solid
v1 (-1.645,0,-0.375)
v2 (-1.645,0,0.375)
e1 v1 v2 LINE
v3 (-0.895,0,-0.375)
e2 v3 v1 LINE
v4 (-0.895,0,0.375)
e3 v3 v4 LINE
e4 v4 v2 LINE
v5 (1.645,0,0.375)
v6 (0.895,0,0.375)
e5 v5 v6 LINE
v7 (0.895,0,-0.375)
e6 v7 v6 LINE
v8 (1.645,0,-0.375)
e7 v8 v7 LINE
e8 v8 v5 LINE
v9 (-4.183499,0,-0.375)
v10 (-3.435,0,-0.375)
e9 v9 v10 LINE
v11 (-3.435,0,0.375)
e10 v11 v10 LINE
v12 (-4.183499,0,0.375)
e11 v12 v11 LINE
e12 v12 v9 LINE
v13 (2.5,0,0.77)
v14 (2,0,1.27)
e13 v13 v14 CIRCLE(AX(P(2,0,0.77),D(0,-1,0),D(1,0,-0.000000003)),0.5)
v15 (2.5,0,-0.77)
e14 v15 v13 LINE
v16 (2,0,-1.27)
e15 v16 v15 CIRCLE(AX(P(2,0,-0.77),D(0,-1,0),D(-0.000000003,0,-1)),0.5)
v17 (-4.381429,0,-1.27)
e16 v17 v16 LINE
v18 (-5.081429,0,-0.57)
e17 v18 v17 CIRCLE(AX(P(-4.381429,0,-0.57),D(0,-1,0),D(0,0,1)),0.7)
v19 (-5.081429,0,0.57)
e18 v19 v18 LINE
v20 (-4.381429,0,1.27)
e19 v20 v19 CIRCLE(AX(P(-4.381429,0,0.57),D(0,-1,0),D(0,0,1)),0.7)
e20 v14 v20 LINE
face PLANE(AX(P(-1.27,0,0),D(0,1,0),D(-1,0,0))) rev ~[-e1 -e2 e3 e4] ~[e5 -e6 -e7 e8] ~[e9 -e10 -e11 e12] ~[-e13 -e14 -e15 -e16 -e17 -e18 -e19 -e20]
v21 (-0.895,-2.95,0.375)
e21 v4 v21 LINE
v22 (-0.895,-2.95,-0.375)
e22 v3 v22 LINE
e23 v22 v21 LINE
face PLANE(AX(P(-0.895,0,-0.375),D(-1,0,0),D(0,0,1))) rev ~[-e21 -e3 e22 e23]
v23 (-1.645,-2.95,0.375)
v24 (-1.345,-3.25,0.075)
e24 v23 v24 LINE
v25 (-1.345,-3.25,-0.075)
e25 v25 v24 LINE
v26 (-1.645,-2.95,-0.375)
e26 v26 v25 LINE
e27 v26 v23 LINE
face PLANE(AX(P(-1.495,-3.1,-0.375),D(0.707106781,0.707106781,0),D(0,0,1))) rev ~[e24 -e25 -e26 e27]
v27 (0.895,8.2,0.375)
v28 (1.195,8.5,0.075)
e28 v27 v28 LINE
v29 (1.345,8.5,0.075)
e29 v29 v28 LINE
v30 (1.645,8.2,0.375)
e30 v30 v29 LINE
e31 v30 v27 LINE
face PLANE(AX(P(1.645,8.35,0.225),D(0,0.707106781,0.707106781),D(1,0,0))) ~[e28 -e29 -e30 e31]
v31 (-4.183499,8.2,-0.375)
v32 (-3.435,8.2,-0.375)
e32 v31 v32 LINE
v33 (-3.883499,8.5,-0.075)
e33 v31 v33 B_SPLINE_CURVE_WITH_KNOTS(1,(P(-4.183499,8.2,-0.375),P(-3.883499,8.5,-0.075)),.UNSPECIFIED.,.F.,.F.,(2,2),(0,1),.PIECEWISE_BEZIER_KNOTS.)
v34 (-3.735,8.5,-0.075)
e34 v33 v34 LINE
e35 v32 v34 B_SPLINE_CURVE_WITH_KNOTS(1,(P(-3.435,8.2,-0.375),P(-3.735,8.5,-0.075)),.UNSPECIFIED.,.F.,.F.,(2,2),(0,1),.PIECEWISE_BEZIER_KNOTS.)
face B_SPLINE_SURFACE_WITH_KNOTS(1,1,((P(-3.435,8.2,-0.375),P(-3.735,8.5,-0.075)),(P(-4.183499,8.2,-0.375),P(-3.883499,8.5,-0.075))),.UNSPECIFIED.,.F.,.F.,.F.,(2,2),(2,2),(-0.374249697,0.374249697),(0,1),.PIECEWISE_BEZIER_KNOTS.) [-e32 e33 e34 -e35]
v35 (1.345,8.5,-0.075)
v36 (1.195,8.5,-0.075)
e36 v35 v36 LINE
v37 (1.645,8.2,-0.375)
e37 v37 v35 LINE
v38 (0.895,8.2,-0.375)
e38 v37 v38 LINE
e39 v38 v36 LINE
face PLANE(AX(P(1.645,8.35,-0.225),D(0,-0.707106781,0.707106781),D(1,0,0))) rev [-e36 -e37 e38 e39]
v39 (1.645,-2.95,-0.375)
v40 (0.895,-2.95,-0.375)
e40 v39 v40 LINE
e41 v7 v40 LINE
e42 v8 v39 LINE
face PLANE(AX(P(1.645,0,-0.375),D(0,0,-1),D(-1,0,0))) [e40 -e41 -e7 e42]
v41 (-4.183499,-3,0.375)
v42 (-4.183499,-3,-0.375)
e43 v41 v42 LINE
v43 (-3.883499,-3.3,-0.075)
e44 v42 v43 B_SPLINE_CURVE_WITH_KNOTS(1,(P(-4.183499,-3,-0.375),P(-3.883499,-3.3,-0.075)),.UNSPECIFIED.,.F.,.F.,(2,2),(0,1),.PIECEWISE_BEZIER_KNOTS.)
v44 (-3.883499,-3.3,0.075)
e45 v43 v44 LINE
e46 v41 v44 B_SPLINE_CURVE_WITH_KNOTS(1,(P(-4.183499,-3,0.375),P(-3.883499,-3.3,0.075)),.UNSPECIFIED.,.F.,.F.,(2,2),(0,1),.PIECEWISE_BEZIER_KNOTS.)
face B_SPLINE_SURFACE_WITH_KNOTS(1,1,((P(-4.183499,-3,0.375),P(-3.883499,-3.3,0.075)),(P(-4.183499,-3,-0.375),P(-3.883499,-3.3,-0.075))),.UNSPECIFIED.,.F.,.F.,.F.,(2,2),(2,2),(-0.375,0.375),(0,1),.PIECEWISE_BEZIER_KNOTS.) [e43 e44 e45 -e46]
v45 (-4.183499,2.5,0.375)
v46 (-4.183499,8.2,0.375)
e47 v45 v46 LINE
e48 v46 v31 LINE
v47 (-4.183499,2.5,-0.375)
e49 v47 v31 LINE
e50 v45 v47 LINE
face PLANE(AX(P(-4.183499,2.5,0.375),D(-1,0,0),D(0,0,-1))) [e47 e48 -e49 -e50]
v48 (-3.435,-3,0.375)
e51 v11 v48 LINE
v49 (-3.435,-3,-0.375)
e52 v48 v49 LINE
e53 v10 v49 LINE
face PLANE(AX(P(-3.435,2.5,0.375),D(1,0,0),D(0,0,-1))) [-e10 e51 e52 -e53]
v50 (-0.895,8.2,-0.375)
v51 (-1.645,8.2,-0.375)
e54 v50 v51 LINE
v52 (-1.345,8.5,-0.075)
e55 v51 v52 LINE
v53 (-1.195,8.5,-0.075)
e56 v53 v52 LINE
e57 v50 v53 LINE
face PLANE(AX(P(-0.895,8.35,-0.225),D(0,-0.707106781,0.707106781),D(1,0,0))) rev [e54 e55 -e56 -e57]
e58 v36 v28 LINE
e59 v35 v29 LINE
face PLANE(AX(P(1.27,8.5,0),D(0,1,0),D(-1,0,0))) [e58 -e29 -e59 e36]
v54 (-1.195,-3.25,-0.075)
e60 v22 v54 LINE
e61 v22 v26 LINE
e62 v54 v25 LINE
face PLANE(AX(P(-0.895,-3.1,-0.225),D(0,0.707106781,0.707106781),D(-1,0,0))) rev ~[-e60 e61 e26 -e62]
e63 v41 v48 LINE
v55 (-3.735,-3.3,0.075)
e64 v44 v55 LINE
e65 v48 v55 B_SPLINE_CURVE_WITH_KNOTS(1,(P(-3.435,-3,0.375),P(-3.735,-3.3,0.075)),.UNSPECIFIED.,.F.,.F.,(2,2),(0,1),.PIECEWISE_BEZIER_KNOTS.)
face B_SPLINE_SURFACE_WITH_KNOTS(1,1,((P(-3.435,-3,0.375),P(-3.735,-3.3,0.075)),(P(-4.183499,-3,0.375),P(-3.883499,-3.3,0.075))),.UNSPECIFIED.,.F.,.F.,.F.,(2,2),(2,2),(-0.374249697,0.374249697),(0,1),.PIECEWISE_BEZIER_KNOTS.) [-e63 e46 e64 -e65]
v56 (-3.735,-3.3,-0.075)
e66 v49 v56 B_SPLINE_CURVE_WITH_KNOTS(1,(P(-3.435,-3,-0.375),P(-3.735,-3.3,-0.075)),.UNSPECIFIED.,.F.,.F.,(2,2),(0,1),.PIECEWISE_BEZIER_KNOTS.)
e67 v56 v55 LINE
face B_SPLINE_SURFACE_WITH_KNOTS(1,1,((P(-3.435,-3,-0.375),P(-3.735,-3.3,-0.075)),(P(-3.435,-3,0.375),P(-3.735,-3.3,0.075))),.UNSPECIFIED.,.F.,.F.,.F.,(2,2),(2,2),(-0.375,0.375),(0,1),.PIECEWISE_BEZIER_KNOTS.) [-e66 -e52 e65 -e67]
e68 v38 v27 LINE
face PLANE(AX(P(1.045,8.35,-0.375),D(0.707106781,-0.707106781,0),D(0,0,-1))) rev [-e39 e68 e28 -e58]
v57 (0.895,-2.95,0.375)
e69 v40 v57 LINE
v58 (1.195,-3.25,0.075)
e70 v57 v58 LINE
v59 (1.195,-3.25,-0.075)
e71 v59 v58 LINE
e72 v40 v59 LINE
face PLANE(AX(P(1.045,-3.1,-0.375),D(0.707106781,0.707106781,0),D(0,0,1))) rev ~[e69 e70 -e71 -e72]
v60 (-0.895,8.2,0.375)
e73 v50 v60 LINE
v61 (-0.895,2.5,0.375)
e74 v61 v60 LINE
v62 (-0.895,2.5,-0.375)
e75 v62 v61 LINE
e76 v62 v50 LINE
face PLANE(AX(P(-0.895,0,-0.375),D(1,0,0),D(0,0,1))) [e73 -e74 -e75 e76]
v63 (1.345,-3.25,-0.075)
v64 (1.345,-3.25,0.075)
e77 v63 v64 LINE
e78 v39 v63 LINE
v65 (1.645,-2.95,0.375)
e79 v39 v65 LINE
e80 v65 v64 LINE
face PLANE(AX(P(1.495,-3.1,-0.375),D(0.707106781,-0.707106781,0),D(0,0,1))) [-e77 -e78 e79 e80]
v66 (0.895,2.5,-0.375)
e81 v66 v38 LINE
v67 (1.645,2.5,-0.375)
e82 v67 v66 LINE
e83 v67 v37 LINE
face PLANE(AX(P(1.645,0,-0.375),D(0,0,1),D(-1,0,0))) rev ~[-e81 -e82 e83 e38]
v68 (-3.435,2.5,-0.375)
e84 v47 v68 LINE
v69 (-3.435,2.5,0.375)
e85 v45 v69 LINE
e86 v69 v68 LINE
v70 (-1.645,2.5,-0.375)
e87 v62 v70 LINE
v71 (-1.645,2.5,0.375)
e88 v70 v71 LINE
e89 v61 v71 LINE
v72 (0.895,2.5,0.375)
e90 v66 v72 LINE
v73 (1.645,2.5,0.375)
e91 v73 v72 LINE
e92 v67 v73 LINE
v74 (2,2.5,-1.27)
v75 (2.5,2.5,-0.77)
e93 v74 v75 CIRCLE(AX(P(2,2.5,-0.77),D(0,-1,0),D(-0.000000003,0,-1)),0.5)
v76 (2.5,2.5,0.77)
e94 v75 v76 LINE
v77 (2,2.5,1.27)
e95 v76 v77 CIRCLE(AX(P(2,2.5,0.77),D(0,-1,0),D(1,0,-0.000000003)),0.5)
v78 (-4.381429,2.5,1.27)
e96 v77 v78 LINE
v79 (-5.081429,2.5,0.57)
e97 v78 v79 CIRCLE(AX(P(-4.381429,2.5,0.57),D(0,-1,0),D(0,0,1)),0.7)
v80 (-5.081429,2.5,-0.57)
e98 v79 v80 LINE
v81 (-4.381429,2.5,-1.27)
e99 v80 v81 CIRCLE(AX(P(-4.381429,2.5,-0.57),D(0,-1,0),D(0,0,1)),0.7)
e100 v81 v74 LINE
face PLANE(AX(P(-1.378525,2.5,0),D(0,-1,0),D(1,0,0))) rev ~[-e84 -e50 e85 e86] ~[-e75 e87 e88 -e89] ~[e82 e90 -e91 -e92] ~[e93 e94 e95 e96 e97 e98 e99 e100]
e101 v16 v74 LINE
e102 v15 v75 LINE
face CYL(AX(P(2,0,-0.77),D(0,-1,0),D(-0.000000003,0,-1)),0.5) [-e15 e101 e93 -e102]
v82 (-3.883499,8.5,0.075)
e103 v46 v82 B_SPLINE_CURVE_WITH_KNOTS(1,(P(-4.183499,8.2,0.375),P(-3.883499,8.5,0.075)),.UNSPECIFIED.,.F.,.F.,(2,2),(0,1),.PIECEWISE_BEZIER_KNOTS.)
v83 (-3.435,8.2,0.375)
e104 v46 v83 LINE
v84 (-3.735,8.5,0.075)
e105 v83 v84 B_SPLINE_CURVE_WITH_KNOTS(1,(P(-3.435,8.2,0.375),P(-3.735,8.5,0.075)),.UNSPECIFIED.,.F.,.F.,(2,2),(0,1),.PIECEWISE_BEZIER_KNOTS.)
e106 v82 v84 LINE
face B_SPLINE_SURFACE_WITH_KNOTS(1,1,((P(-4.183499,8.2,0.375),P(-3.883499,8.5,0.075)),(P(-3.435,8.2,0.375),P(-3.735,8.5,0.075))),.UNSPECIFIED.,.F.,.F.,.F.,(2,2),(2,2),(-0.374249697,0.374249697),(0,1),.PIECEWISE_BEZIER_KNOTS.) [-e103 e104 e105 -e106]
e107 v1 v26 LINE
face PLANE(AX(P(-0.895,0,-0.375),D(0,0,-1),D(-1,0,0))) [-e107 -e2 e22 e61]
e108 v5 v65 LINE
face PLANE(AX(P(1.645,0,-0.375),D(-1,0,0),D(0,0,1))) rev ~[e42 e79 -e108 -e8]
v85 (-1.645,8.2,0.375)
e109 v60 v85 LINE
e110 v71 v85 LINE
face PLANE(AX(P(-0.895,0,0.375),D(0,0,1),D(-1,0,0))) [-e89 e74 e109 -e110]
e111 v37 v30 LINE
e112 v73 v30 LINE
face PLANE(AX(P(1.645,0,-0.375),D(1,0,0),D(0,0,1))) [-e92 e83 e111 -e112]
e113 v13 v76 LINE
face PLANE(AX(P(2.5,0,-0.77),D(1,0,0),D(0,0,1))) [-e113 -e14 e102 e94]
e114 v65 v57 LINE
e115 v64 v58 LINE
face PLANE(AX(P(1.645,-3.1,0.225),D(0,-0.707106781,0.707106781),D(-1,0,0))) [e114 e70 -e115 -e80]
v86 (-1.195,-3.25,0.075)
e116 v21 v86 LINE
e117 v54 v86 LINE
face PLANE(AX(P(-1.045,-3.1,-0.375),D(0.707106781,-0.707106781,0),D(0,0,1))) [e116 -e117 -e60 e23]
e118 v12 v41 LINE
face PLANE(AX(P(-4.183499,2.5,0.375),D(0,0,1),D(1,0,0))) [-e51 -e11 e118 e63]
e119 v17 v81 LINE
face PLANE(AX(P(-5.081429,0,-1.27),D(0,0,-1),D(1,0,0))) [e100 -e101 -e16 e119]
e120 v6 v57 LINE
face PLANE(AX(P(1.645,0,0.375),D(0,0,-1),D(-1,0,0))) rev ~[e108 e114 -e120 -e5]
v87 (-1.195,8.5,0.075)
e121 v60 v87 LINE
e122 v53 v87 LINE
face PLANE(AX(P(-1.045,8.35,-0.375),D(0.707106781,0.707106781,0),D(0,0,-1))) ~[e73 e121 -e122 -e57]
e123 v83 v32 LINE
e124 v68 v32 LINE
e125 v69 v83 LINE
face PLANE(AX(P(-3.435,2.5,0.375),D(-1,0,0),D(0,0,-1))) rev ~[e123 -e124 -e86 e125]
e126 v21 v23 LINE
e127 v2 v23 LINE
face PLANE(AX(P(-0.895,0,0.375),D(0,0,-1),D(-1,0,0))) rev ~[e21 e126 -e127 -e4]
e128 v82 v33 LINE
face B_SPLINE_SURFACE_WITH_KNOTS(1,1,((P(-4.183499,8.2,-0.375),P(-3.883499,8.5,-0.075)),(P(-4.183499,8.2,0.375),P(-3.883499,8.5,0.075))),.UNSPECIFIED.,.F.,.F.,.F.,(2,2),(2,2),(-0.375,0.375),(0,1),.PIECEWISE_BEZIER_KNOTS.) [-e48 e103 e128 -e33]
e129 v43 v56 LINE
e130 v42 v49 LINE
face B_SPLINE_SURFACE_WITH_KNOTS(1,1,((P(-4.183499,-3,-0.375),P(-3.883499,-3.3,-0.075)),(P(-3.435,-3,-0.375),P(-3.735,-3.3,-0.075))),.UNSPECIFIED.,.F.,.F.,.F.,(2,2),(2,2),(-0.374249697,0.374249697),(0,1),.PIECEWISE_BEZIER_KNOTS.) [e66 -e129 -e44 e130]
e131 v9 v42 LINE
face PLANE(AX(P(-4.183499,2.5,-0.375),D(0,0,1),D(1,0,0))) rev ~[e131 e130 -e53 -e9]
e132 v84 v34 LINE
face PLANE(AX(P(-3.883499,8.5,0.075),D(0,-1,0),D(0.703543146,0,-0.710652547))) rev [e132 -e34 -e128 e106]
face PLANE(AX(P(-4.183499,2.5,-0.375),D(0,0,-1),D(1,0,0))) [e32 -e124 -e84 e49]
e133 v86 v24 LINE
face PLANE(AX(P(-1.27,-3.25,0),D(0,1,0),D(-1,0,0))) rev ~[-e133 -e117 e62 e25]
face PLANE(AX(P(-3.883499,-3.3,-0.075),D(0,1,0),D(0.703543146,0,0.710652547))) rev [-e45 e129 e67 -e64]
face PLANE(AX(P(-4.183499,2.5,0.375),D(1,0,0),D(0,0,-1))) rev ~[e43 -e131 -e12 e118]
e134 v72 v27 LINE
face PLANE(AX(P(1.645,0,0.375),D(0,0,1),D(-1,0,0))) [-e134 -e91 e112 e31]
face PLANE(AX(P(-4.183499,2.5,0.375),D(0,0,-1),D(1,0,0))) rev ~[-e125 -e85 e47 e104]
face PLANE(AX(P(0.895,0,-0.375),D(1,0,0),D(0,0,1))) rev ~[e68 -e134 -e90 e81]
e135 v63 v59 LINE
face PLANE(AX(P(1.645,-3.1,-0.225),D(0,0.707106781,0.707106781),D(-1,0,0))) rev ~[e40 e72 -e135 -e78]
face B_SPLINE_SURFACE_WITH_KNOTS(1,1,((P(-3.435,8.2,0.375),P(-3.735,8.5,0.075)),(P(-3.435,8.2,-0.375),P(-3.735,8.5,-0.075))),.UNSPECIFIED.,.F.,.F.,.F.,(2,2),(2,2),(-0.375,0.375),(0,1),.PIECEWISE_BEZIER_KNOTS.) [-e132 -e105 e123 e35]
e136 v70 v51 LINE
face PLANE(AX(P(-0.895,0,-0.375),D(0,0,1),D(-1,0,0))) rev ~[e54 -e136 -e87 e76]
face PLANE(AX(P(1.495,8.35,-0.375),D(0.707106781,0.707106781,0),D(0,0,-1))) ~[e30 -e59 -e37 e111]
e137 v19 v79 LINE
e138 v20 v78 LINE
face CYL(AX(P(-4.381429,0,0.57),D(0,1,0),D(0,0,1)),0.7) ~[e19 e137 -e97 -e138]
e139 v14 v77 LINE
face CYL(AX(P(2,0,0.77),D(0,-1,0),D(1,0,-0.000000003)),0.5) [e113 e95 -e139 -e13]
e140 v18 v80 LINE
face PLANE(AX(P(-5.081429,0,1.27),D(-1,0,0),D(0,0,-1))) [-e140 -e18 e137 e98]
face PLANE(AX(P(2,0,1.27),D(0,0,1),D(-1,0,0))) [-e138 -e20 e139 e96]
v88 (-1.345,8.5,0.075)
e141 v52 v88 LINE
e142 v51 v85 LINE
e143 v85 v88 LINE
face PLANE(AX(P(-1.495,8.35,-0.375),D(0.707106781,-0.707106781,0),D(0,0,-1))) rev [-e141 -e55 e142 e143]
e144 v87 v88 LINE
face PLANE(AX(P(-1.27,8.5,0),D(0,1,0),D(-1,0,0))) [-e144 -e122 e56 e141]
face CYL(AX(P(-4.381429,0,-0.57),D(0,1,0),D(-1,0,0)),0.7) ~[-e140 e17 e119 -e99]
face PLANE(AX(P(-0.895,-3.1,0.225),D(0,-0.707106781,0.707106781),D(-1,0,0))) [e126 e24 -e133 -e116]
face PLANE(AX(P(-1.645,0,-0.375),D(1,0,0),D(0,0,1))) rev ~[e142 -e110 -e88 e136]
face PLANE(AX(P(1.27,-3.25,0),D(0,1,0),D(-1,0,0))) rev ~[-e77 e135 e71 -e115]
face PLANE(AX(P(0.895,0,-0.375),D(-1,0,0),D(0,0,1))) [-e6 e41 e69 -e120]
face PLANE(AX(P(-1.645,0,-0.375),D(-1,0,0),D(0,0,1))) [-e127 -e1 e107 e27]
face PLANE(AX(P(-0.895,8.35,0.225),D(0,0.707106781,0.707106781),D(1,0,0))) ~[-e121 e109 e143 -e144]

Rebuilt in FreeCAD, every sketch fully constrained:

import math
import FreeCAD as App
import Part
import Sketcher
from FreeCAD import Vector
Q = App.Units.Quantity


def edges_at(feature, points):
    """Names of the edges that pass closest to the given points."""
    edges = feature.Shape.Edges
    near = lambda p: min(range(len(edges)), key=lambda i: edges[i].distToShape(Part.Vertex(*p))[0])
    return sorted({f"Edge{near(p) + 1}" for p in points})


def add_polygon(sketch, points):
    """Adds a closed chain of lines whose ends are joined by coincident constraints."""
    first, n = sketch.GeometryCount, len(points)
    for a, b in zip(points, points[1:] + points[:1]):
        sketch.addGeometry(Part.LineSegment(App.Vector(*a, 0), App.Vector(*b, 0)), False)
    for i in range(n):
        sketch.addConstraint(Sketcher.Constraint("Coincident", first + i, 2, first + (i + 1) % n, 1))

doc = App.newDocument("Part")
params = doc.addObject("Spreadsheet::Sheet", "Params")
for row, (alias, value) in enumerate([
    ("sketch1_radius", "0.5 mm"),
    ("sketch1_height", "1.54 mm"),
    ("pad1_length", "2.5 mm"),
    ("sketch2_width", "0.75 mm"),
    ("pad2_length", "8.5 mm"),
    ("pad2_length2", "3.25 mm"),
    ("chamfer_size", "0.3 mm"),
    ("fillet_radius", "0.7 mm"),
    ("sketch3_height", "0.75 mm"),
    ("pad3_length", "5.7 mm"),
    ("pad3_length2", "5.5 mm"),
    ("sketch4_height", "0.75 mm"),
    ("pad4_length", "0.3 mm"),
    ("pad4_taper", "-45 deg"),
    ("sketch5_height", "0.75 mm"),
    ("pad5_length", "0.3 mm"),
    ("pad5_taper", "-45 deg"),
], start=1):
    params.set(f"A{row}", alias)
    params.set(f"B{row}", "=" + value)
    params.setAlias(f"B{row}", alias)

body = doc.addObject("PartDesign::Body", "Body")

# Sketch on XZ plane
sketch1 = body.newObject("Sketcher::SketchObject", "Sketch")
sketch1.AttachmentSupport = (doc.getObject("XZ_Plane"), [""])
sketch1.MapMode = "FlatFace"
sketch1.addGeometry([
    Part.LineSegment(Vector(-5.081429, 1.27, 0), Vector(2, 1.27, 0)),  # 0
    Part.ArcOfCircle(Part.Circle(Vector(2, 0.77, 0), Vector(0, 0, 1), 0.5), math.radians(0), math.radians(90)),  # 1
    Part.LineSegment(Vector(2.5, 0.77, 0), Vector(2.5, -0.77, 0)),  # 2
    Part.ArcOfCircle(Part.Circle(Vector(2, -0.77, 0), Vector(0, 0, 1), 0.5), math.radians(-90), math.radians(0)),  # 3
    Part.LineSegment(Vector(2, -1.27, 0), Vector(-5.081429, -1.27, 0)),  # 4
    Part.LineSegment(Vector(-5.081429, -1.27, 0), Vector(-5.081429, 1.27, 0)),  # 5
], False)
sketch1.addConstraint([
    Sketcher.Constraint("Tangent", 0, 2, 1, 2),
    Sketcher.Constraint("Tangent", 1, 1, 2, 1),
    Sketcher.Constraint("Tangent", 2, 2, 3, 2),
    Sketcher.Constraint("Tangent", 3, 1, 4, 1),
    Sketcher.Constraint("Coincident", 4, 2, 5, 1),
    Sketcher.Constraint("Coincident", 5, 2, 0, 1),
    Sketcher.Constraint("Horizontal", 0),
    Sketcher.Constraint("Vertical", 2),
    Sketcher.Constraint("Horizontal", 4),
    Sketcher.Constraint("Vertical", 5),
    Sketcher.Constraint("Equal", 1, 3),
    Sketcher.Constraint("Radius", 1, Q("0.5 mm")),
    Sketcher.Constraint("DistanceX", -1, 1, 1, 3, Q("2 mm")),
    Sketcher.Constraint("DistanceY", 2, 2, 2, 1, Q("1.54 mm")),
    Sketcher.Constraint("DistanceY", -1, 1, 1, 3, Q("0.77 mm")),
    Sketcher.Constraint("DistanceX", 0, 1, 0, 2, Q("7.081429 mm")),
])
sketch1.setExpression("Constraints[11]", "Params.sketch1_radius")
sketch1.setExpression("Constraints[13]", "Params.sketch1_height")
pad1 = body.newObject("PartDesign::Pad", "Pad")
pad1.Profile = sketch1
pad1.setExpression("Length", "Params.pad1_length")
pad1.Reversed = True

# Sketch on XZ plane
sketch2 = body.newObject("Sketcher::SketchObject", "Sketch001")
sketch2.AttachmentSupport = (doc.getObject("XZ_Plane"), [""])
sketch2.MapMode = "FlatFace"
add_polygon(sketch2, [(-0.895, 0.375), (-0.895, -0.375), (-1.645, -0.375), (-1.645, 0.375)])  # lines 0-3
add_polygon(sketch2, [(1.645, 0.375), (1.645, -0.375), (0.895, -0.375), (0.895, 0.375)])  # lines 4-7
sketch2.addConstraint([
    Sketcher.Constraint("Vertical", 0),
    Sketcher.Constraint("Horizontal", 1),
    Sketcher.Constraint("Vertical", 2),
    Sketcher.Constraint("Horizontal", 3),
    Sketcher.Constraint("Vertical", 4),
    Sketcher.Constraint("Horizontal", 5),
    Sketcher.Constraint("Vertical", 6),
    Sketcher.Constraint("Horizontal", 7),
    Sketcher.Constraint("Symmetric", 2, 2, 4, 2, -1, 1),
    Sketcher.Constraint("Symmetric", 0, 2, 6, 2, -1, 1),
    Sketcher.Constraint("Horizontal", 1, 2, 4, 2),
    Sketcher.Constraint("Equal", 7, 0),
    Sketcher.Constraint("DistanceX", 1, 2, 1, 1, Q("0.75 mm")),
    Sketcher.Constraint("DistanceX", 0, 2, 4, 2, Q("2.54 mm")),
])
sketch2.setExpression("Constraints[20]", "Params.sketch2_width")
pad2 = body.newObject("PartDesign::Pad", "Pad001")
pad2.Profile = sketch2
pad2.Type = "TwoLengths"
pad2.setExpression("Length", "Params.pad2_length")
pad2.setExpression("Length2", "Params.pad2_length2")
pad2.Reversed = True
doc.recompute()

chamfer = body.newObject("PartDesign::Chamfer", "Chamfer")
chamfer.Base = (pad2, edges_at(pad2, [
    (-0.895, -3.25, 0),
    (-1.27, -3.25, 0.375),
    (-1.645, -3.25, 0),
    (-1.27, -3.25, -0.375),
    (-0.895, 8.5, 0),
    (-1.27, 8.5, -0.375),
    (-1.645, 8.5, 0),
    (-1.27, 8.5, 0.375),
    (0.895, -3.25, 0),
    (1.27, -3.25, -0.375),
    (1.645, -3.25, 0),
    (1.27, -3.25, 0.375),
    (0.895, 8.5, 0),
    (1.27, 8.5, 0.375),
    (1.645, 8.5, 0),
    (1.27, 8.5, -0.375),
]))
chamfer.setExpression("Size", "Params.chamfer_size")
doc.recompute()

fillet = body.newObject("PartDesign::Fillet", "Fillet")
fillet.Base = (chamfer, edges_at(chamfer, [(-5.081, 1.25, 1.27), (-5.081, 1.25, -1.27)]))
fillet.setExpression("Radius", "Params.fillet_radius")

# Sketch on XZ plane
sketch3 = body.newObject("Sketcher::SketchObject", "Sketch002")
sketch3.AttachmentSupport = (doc.getObject("XZ_Plane"), [""])
sketch3.MapMode = "FlatFace"
sketch3.AttachmentOffset = App.Placement(Vector(0, 0, -2.5), App.Rotation())
add_polygon(sketch3, [(-4.183499, -0.375), (-4.183499, 0.375), (-3.435, 0.375), (-3.435, -0.375)])  # lines 0-3
sketch3.addConstraint([
    Sketcher.Constraint("Vertical", 0),
    Sketcher.Constraint("Horizontal", 1),
    Sketcher.Constraint("Vertical", 2),
    Sketcher.Constraint("Horizontal", 3),
    Sketcher.Constraint("DistanceY", 0, 1, 0, 2, Q("0.75 mm")),
    Sketcher.Constraint("DistanceX", 1, 1, 1, 2, Q("0.748499 mm")),
    Sketcher.Constraint("DistanceY", -1, 1, 0, 2, Q("0.375 mm")),
    Sketcher.Constraint("DistanceX", 1, 2, -1, 1, Q("3.435 mm")),
])
sketch3.setExpression("Constraints[8]", "Params.sketch3_height")
pad3 = body.newObject("PartDesign::Pad", "Pad002")
pad3.Profile = sketch3
pad3.Type = "TwoLengths"
pad3.setExpression("Length", "Params.pad3_length")
pad3.setExpression("Length2", "Params.pad3_length2")
pad3.Reversed = True

# Sketch on XZ plane
sketch4 = body.newObject("Sketcher::SketchObject", "Sketch003")
sketch4.AttachmentSupport = (doc.getObject("XZ_Plane"), [""])
sketch4.MapMode = "FlatFace"
sketch4.AttachmentOffset = App.Placement(Vector(0, 0, -8.2), App.Rotation())
add_polygon(sketch4, [(-4.183499, -0.375), (-4.183499, 0.375), (-3.435, 0.375), (-3.435, -0.375)])  # lines 0-3
sketch4.addConstraint([
    Sketcher.Constraint("Vertical", 0),
    Sketcher.Constraint("Horizontal", 1),
    Sketcher.Constraint("Vertical", 2),
    Sketcher.Constraint("Horizontal", 3),
    Sketcher.Constraint("DistanceY", 0, 1, 0, 2, Q("0.75 mm")),
    Sketcher.Constraint("DistanceX", 1, 1, 1, 2, Q("0.748499 mm")),
    Sketcher.Constraint("DistanceY", -1, 1, 0, 2, Q("0.375 mm")),
    Sketcher.Constraint("DistanceX", 1, 2, -1, 1, Q("3.435 mm")),
])
sketch4.setExpression("Constraints[8]", "Params.sketch4_height")
pad4 = body.newObject("PartDesign::Pad", "Pad003")
pad4.Profile = sketch4
pad4.setExpression("Length", "Params.pad4_length")
pad4.Reversed = True
pad4.setExpression("TaperAngle", "Params.pad4_taper")

# Sketch on XZ plane
sketch5 = body.newObject("Sketcher::SketchObject", "Sketch004")
sketch5.AttachmentSupport = (doc.getObject("XZ_Plane"), [""])
sketch5.MapMode = "FlatFace"
sketch5.AttachmentOffset = App.Placement(Vector(0, 0, 3), App.Rotation())
add_polygon(sketch5, [(-4.183499, 0.375), (-4.183499, -0.375), (-3.435, -0.375), (-3.435, 0.375)])  # lines 0-3
sketch5.addConstraint([
    Sketcher.Constraint("Vertical", 0),
    Sketcher.Constraint("Horizontal", 1),
    Sketcher.Constraint("Vertical", 2),
    Sketcher.Constraint("Horizontal", 3),
    Sketcher.Constraint("DistanceY", 0, 2, 0, 1, Q("0.75 mm")),
    Sketcher.Constraint("DistanceX", 1, 1, 1, 2, Q("0.748499 mm")),
    Sketcher.Constraint("DistanceY", 0, 2, -1, 1, Q("0.375 mm")),
    Sketcher.Constraint("DistanceX", 1, 2, -1, 1, Q("3.435 mm")),
])
sketch5.setExpression("Constraints[8]", "Params.sketch5_height")
pad5 = body.newObject("PartDesign::Pad", "Pad004")
pad5.Profile = sketch5
pad5.setExpression("Length", "Params.pad5_length")
pad5.setExpression("TaperAngle", "Params.pad5_taper")

doc.recompute()
